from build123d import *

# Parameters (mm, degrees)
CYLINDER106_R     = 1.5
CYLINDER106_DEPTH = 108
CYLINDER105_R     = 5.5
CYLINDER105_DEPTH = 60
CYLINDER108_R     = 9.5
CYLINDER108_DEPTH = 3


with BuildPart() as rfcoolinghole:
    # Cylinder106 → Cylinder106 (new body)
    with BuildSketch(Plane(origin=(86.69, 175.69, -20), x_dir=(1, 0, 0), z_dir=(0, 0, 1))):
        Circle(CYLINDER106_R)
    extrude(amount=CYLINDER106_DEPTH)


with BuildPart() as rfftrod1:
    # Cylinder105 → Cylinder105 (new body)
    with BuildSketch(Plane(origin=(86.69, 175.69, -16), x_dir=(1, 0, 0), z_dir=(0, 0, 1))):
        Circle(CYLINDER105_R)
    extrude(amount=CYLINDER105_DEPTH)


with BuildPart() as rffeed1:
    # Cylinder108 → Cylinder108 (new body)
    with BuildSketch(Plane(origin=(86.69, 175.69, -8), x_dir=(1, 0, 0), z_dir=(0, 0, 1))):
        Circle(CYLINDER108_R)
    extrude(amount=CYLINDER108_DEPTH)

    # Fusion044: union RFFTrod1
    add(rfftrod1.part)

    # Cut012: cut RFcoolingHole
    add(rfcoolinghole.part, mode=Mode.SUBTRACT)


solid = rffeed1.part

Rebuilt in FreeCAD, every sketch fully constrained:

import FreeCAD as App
import Part
import Sketcher
from FreeCAD import Vector
Q = App.Units.Quantity

doc = App.newDocument("Part")
body = doc.addObject("PartDesign::Body", "Body")

sketch1 = body.newObject("Sketcher::SketchObject", "Sketch")
sketch1.AttachmentSupport = (doc.getObject("XY_Plane"), [""])
sketch1.MapMode = "FlatFace"
sketch1.AttachmentOffset = App.Placement(Vector(0, 0, -20), App.Rotation())
sketch1.addGeometry(Part.Circle(Vector(86.7, 175.7, 0), Vector(0, 0, 1), 1.5), False)
sketch1.addConstraint([
    Sketcher.Constraint("Diameter", 0, Q("3 mm")),
    Sketcher.Constraint("DistanceX", -1, 1, 0, 3, Q("86.69 mm")),
    Sketcher.Constraint("DistanceY", -1, 1, 0, 3, Q("175.69 mm")),
])
pad1 = body.newObject("PartDesign::Pad", "Pad")
pad1.Profile = sketch1
pad1.Length = 108
body2 = doc.addObject("PartDesign::Body", "Body001")

sketch2 = body2.newObject("Sketcher::SketchObject", "Sketch001")
sketch2.AttachmentSupport = (doc.getObject("XY_Plane001"), [""])
sketch2.MapMode = "FlatFace"
sketch2.AttachmentOffset = App.Placement(Vector(0, 0, -16), App.Rotation())
sketch2.addGeometry(Part.Circle(Vector(87, 176, 0), Vector(0, 0, 1), 6), False)
sketch2.addConstraint([
    Sketcher.Constraint("Diameter", 0, Q("11 mm")),
    Sketcher.Constraint("DistanceX", -1, 1, 0, 3, Q("86.69 mm")),
    Sketcher.Constraint("DistanceY", -1, 1, 0, 3, Q("175.69 mm")),
])
pad2 = body2.newObject("PartDesign::Pad", "Pad001")
pad2.Profile = sketch2
pad2.Length = 60
body3 = doc.addObject("PartDesign::Body", "Body002")

sketch3 = body3.newObject("Sketcher::SketchObject", "Sketch002")
sketch3.AttachmentSupport = (doc.getObject("XY_Plane002"), [""])
sketch3.MapMode = "FlatFace"
sketch3.AttachmentOffset = App.Placement(Vector(0, 0, -8), App.Rotation())
sketch3.addGeometry(Part.Circle(Vector(87, 176, 0), Vector(0, 0, 1), 10), False)
sketch3.addConstraint([
    Sketcher.Constraint("Diameter", 0, Q("19 mm")),
    Sketcher.Constraint("DistanceX", -1, 1, 0, 3, Q("86.69 mm")),
    Sketcher.Constraint("DistanceY", -1, 1, 0, 3, Q("175.69 mm")),
])
pad3 = body3.newObject("PartDesign::Pad", "Pad002")
pad3.Profile = sketch3
pad3.Length = 3
doc.recompute()

boolean = body3.newObject("PartDesign::Boolean", "Boolean")
boolean.Type = "Fuse"
boolean.addObjects([body2])
doc.recompute()

boolean2 = body3.newObject("PartDesign::Boolean", "Boolean001")
boolean2.Type = "Cut"
boolean2.addObjects([body])

doc.recompute()
